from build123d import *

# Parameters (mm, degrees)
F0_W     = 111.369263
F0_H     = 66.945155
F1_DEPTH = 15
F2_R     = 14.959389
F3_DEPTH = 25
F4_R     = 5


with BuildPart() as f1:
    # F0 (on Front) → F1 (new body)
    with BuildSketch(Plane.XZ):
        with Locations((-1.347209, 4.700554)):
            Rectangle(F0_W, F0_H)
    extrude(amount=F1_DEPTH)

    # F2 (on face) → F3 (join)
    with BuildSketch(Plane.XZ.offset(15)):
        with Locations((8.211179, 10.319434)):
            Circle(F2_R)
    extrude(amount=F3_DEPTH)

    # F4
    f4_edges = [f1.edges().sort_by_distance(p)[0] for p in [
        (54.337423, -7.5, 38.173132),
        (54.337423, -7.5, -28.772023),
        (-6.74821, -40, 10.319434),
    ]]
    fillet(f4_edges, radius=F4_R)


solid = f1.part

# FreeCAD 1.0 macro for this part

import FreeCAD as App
import Part
import Sketcher

V = App.Vector
Q = App.Units.Quantity


def edges_at(feature, points):
    """Names of the edges that pass closest to the given points."""
    edges = feature.Shape.Edges
    near = lambda p: min(range(len(edges)), key=lambda i: edges[i].distToShape(Part.Vertex(*p))[0])
    return sorted({f"Edge{near(p) + 1}" for p in points})


def add_polygon(sketch, points):
    """Adds a closed chain of lines whose ends are joined by coincident constraints."""
    first, n = sketch.GeometryCount, len(points)
    for a, b in zip(points, points[1:] + points[:1]):
        sketch.addGeometry(Part.LineSegment(App.Vector(*a, 0), App.Vector(*b, 0)), False)
    for i in range(n):
        sketch.addConstraint(Sketcher.Constraint("Coincident", first + i, 2, first + (i + 1) % n, 1))

doc = App.newDocument("Part")
body = doc.addObject("PartDesign::Body", "Body")

sketch1 = body.newObject("Sketcher::SketchObject", "Sketch")
sketch1.AttachmentSupport = (doc.getObject("XZ_Plane"), [""])
sketch1.MapMode = "FlatFace"
add_polygon(sketch1, [(-57.031841, 38.173131), (-57.031841, -28.772023), (54.337423, -28.772023), (54.337423, 38.173131)])
sketch1.addConstraint([
    Sketcher.Constraint("Vertical", 0),
    Sketcher.Constraint("Horizontal", 1),
    Sketcher.Constraint("Vertical", 2),
    Sketcher.Constraint("Horizontal", 3),
    Sketcher.Constraint("DistanceX", 1, 1, 1, 2, Q("111.369263 mm")),
    Sketcher.Constraint("DistanceY", 0, 2, 0, 1, Q("66.945155 mm")),
    Sketcher.Constraint("DistanceX", 0, 2, -1, 1, Q("57.031841 mm")),
    Sketcher.Constraint("DistanceY", -1, 1, 2, 2, Q("38.173131 mm")),
])
pad1 = body.newObject("PartDesign::Pad", "Pad")
pad1.Profile = sketch1
pad1.Length = 15

sketch2 = body.newObject("Sketcher::SketchObject", "Sketch001")
sketch2.AttachmentSupport = (doc.getObject("XZ_Plane"), [""])
sketch2.MapMode = "FlatFace"
sketch2.AttachmentOffset = App.Placement(V(0, 0, 15), App.Rotation())
sketch2.addGeometry(Part.Circle(V(8.211179, 10.319434, 0), V(0, 0, 1), 14.959389), False)
sketch2.addConstraint([
    Sketcher.Constraint("Diameter", 0, Q("29.918778 mm")),
    Sketcher.Constraint("DistanceX", -1, 1, 0, 3, Q("8.211179 mm")),
    Sketcher.Constraint("DistanceY", -1, 1, 0, 3, Q("10.319434 mm")),
])
pad2 = body.newObject("PartDesign::Pad", "Pad001")
pad2.Profile = sketch2
pad2.Length = 25
doc.recompute()

fillet = body.newObject("PartDesign::Fillet", "Fillet")
fillet.Base = (pad2, edges_at(pad2, [(54.337, -7.5, 38.173), (54.337, -7.5, -28.772), (-6.748, -40, 10.319)]))
fillet.Radius = 5

doc.recompute()
